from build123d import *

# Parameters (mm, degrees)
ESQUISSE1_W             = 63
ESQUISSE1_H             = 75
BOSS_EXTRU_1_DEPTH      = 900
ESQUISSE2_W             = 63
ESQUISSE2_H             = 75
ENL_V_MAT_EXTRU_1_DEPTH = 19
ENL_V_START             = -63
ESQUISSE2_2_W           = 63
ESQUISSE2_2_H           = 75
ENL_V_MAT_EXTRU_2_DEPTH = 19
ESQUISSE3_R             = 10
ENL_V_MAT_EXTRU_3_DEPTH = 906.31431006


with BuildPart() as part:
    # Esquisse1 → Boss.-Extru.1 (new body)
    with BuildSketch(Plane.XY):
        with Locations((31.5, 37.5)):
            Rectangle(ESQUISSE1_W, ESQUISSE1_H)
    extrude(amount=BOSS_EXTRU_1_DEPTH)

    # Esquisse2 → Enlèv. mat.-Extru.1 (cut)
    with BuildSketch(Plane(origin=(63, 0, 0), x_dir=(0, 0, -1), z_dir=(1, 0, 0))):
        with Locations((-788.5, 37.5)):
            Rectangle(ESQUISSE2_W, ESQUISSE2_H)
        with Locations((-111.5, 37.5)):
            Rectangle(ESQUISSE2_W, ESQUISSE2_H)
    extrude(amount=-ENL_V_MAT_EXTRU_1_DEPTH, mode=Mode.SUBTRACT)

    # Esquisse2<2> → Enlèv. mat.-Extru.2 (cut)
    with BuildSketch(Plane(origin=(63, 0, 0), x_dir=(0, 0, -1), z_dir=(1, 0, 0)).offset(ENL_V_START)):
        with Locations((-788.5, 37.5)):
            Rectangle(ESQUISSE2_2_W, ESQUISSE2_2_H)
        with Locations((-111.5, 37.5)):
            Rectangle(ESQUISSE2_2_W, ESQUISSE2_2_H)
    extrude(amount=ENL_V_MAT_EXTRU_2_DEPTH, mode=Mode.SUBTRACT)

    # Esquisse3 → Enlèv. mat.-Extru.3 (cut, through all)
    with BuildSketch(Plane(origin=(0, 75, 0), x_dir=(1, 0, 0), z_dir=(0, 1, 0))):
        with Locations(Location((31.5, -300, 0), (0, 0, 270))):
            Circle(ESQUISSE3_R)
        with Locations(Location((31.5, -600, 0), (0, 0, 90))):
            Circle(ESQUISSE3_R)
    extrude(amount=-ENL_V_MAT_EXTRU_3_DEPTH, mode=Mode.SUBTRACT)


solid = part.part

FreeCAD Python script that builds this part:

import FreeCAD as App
import Part
import Sketcher
Q = App.Units.Quantity


def add_polygon(sketch, points):
    """Adds a closed chain of lines whose ends are joined by coincident constraints."""
    first, n = sketch.GeometryCount, len(points)
    for a, b in zip(points, points[1:] + points[:1]):
        sketch.addGeometry(Part.LineSegment(App.Vector(*a, 0), App.Vector(*b, 0)), False)
    for i in range(n):
        sketch.addConstraint(Sketcher.Constraint("Coincident", first + i, 2, first + (i + 1) % n, 1))

doc = App.newDocument("Part")
params = doc.addObject("Spreadsheet::Sheet", "Params")
for row, (alias, value) in enumerate([
    ("sketch1_width", "63 mm"),
    ("sketch1_height", "75 mm"),
    ("pad1_length", "900 mm"),
    ("sketch2_width", "75 mm"),
    ("sketch2_height", "63 mm"),
    ("pocket1_length", "19 mm"),
    ("sketch3_width", "75 mm"),
    ("sketch3_height", "63 mm"),
    ("pocket2_length", "19 mm"),
    ("sketch4_diameter", "20 mm"),
], start=1):
    params.set(f"A{row}", alias)
    params.set(f"B{row}", "=" + value)
    params.setAlias(f"B{row}", alias)

body = doc.addObject("PartDesign::Body", "Body")

# Sketch on XY plane
sketch1 = body.newObject("Sketcher::SketchObject", "Sketch")
sketch1.AttachmentSupport = (doc.getObject("XY_Plane"), [""])
sketch1.MapMode = "FlatFace"
add_polygon(sketch1, [(0, 75), (0, 0), (63, 0), (63, 75)])  # lines 0-3
sketch1.addConstraint([
    Sketcher.Constraint("Vertical", 0),
    Sketcher.Constraint("Horizontal", 1),
    Sketcher.Constraint("Vertical", 2),
    Sketcher.Constraint("Horizontal", 3),
    Sketcher.Constraint("Coincident", 0, 2, -1, 1),
    Sketcher.Constraint("DistanceX", 1, 1, 1, 2, Q("63 mm")),
    Sketcher.Constraint("DistanceY", 0, 2, 0, 1, Q("75 mm")),
])
sketch1.setExpression("Constraints[9]", "Params.sketch1_width")
sketch1.setExpression("Constraints[10]", "Params.sketch1_height")
pad1 = body.newObject("PartDesign::Pad", "Pad")
pad1.Profile = sketch1
pad1.setExpression("Length", "Params.pad1_length")

# Sketch on YZ plane
sketch2 = body.newObject("Sketcher::SketchObject", "Sketch001")
sketch2.AttachmentSupport = (doc.getObject("YZ_Plane"), [""])
sketch2.MapMode = "FlatFace"
sketch2.AttachmentOffset = App.Placement(App.Vector(0, 0, 63), App.Rotation())
add_polygon(sketch2, [(75, 820), (0, 820), (0, 757), (75, 757)])  # lines 0-3
add_polygon(sketch2, [(75, 143), (0, 143), (0, 80), (75, 80)])  # lines 4-7
sketch2.addConstraint([
    Sketcher.Constraint("Horizontal", 0),
    Sketcher.Constraint("Vertical", 1),
    Sketcher.Constraint("Horizontal", 2),
    Sketcher.Constraint("Vertical", 3),
    Sketcher.Constraint("Horizontal", 4),
    Sketcher.Constraint("Vertical", 5),
    Sketcher.Constraint("Horizontal", 6),
    Sketcher.Constraint("Vertical", 7),
    Sketcher.Constraint("PointOnObject", 0, 2, -2),
    Sketcher.Constraint("PointOnObject", 4, 2, -2),
    Sketcher.Constraint("Vertical", 3, 2, 6, 2),
    Sketcher.Constraint("Equal", 3, 5),
    Sketcher.Constraint("DistanceX", 0, 2, 0, 1, Q("75 mm")),
    Sketcher.Constraint("DistanceY", 1, 2, 1, 1, Q("63 mm")),
    Sketcher.Constraint("DistanceY", -1, 1, 0, 2, Q("820 mm")),
    Sketcher.Constraint("DistanceY", -1, 1, 4, 2, Q("143 mm")),
])
sketch2.setExpression("Constraints[20]", "Params.sketch2_width")
sketch2.setExpression("Constraints[21]", "Params.sketch2_height")
pocket1 = body.newObject("PartDesign::Pocket", "Pocket")
pocket1.Profile = sketch2
pocket1.setExpression("Length", "Params.pocket1_length")

# Sketch on YZ plane
sketch3 = body.newObject("Sketcher::SketchObject", "Sketch002")
sketch3.AttachmentSupport = (doc.getObject("YZ_Plane"), [""])
sketch3.MapMode = "FlatFace"
add_polygon(sketch3, [(75, 820), (0, 820), (0, 757), (75, 757)])  # lines 0-3
add_polygon(sketch3, [(75, 143), (0, 143), (0, 80), (75, 80)])  # lines 4-7
sketch3.addConstraint([
    Sketcher.Constraint("Horizontal", 0),
    Sketcher.Constraint("Vertical", 1),
    Sketcher.Constraint("Horizontal", 2),
    Sketcher.Constraint("Vertical", 3),
    Sketcher.Constraint("Horizontal", 4),
    Sketcher.Constraint("Vertical", 5),
    Sketcher.Constraint("Horizontal", 6),
    Sketcher.Constraint("Vertical", 7),
    Sketcher.Constraint("PointOnObject", 0, 2, -2),
    Sketcher.Constraint("PointOnObject", 4, 2, -2),
    Sketcher.Constraint("Vertical", 3, 2, 6, 2),
    Sketcher.Constraint("Equal", 3, 5),
    Sketcher.Constraint("DistanceX", 0, 2, 0, 1, Q("75 mm")),
    Sketcher.Constraint("DistanceY", 1, 2, 1, 1, Q("63 mm")),
    Sketcher.Constraint("DistanceY", -1, 1, 0, 2, Q("820 mm")),
    Sketcher.Constraint("DistanceY", -1, 1, 4, 2, Q("143 mm")),
])
sketch3.setExpression("Constraints[20]", "Params.sketch3_width")
sketch3.setExpression("Constraints[21]", "Params.sketch3_height")
pocket2 = body.newObject("PartDesign::Pocket", "Pocket001")
pocket2.Profile = sketch3
pocket2.setExpression("Length", "Params.pocket2_length")
pocket2.Reversed = True

# Sketch on XZ plane
sketch4 = body.newObject("Sketcher::SketchObject", "Sketch003")
sketch4.AttachmentSupport = (doc.getObject("XZ_Plane"), [""])
sketch4.MapMode = "FlatFace"
sketch4.AttachmentOffset = App.Placement(App.Vector(0, 0, -75), App.Rotation())
sketch4.addGeometry([
    Part.Circle(App.Vector(32, 300, 0), App.Vector(0, 0, 1), 10),
    Part.Circle(App.Vector(32, 600, 0), App.Vector(0, 0, 1), 10),
], False)
sketch4.addConstraint([
    Sketcher.Constraint("Equal", 0, 1),
    Sketcher.Constraint("Vertical", 0, 3, 1, 3),
    Sketcher.Constraint("Diameter", 0, Q("20 mm")),
    Sketcher.Constraint("DistanceY", -1, 1, 0, 3, Q("300 mm")),
    Sketcher.Constraint("DistanceY", -1, 1, 1, 3, Q("600 mm")),
    Sketcher.Constraint("DistanceX", -1, 1, 0, 3, Q("31.5 mm")),
])
sketch4.setExpression("Constraints[2]", "Params.sketch4_diameter")
pocket3 = body.newObject("PartDesign::Pocket", "Pocket002")
pocket3.Profile = sketch4
pocket3.Type = "ThroughAll"
pocket3.Reversed = True

doc.recompute()
